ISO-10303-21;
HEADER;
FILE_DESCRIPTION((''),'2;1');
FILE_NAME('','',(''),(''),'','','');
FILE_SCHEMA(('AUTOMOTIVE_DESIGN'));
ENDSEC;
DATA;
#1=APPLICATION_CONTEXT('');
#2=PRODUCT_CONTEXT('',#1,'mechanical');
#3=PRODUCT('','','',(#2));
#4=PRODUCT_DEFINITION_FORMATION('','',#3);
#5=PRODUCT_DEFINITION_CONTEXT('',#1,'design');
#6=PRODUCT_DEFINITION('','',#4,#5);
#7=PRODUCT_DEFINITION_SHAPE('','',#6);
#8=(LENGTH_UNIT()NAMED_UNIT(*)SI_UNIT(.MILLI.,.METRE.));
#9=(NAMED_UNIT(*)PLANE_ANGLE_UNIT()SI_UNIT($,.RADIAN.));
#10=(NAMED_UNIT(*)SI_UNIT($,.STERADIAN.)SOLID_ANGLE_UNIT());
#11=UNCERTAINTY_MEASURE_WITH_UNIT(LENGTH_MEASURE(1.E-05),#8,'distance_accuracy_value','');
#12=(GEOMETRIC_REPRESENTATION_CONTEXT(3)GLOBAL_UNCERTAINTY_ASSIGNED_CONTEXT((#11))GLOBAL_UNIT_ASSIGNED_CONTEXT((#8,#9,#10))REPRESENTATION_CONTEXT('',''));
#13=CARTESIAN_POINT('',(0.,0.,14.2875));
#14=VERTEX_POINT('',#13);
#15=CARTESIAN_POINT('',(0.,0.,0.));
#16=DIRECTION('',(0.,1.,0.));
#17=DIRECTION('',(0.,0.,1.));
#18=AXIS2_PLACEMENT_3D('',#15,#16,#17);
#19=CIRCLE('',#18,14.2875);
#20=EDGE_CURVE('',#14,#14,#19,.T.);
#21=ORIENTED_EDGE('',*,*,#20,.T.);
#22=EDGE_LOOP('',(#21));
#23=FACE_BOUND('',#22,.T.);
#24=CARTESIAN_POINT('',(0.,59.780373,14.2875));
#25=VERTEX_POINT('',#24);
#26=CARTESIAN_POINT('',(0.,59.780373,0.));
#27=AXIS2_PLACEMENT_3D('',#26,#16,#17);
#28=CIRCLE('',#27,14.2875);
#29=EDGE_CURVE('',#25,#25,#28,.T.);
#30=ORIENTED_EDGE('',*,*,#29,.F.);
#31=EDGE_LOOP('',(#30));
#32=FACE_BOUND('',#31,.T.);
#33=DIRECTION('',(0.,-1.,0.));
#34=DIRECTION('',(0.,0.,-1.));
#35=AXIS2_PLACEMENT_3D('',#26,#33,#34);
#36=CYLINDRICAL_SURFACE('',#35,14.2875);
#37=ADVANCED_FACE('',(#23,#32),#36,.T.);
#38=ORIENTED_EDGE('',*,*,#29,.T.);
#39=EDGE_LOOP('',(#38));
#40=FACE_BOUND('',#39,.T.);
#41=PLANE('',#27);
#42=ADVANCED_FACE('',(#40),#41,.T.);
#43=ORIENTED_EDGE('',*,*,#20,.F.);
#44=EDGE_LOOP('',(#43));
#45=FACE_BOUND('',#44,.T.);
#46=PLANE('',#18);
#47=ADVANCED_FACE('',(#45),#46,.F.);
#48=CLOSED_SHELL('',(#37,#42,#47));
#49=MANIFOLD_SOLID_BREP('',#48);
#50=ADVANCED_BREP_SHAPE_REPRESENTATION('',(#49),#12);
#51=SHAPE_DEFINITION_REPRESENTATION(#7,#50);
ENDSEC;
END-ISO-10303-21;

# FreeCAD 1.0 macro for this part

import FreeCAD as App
import Part
import Sketcher
from FreeCAD import Vector
Q = App.Units.Quantity

doc = App.newDocument("Part")
body = doc.addObject("PartDesign::Body", "Body")

# Sketch on XZ plane
sketch1 = body.newObject("Sketcher::SketchObject", "Sketch")
sketch1.AttachmentSupport = (doc.getObject("XZ_Plane"), [""])
sketch1.MapMode = "FlatFace"
sketch1.addGeometry(Part.Circle(Vector(0, 0, 0), Vector(0, 0, 1), 14), False)
sketch1.addConstraint([
    Sketcher.Constraint("Coincident", 0, 3, -1, 1),
    Sketcher.Constraint("Diameter", 0, Q("1.125 in")),
])
pad1 = body.newObject("PartDesign::Pad", "Pad")
pad1.Profile = sketch1
pad1.Length = 59.780373
pad1.Reversed = True

doc.recompute()
